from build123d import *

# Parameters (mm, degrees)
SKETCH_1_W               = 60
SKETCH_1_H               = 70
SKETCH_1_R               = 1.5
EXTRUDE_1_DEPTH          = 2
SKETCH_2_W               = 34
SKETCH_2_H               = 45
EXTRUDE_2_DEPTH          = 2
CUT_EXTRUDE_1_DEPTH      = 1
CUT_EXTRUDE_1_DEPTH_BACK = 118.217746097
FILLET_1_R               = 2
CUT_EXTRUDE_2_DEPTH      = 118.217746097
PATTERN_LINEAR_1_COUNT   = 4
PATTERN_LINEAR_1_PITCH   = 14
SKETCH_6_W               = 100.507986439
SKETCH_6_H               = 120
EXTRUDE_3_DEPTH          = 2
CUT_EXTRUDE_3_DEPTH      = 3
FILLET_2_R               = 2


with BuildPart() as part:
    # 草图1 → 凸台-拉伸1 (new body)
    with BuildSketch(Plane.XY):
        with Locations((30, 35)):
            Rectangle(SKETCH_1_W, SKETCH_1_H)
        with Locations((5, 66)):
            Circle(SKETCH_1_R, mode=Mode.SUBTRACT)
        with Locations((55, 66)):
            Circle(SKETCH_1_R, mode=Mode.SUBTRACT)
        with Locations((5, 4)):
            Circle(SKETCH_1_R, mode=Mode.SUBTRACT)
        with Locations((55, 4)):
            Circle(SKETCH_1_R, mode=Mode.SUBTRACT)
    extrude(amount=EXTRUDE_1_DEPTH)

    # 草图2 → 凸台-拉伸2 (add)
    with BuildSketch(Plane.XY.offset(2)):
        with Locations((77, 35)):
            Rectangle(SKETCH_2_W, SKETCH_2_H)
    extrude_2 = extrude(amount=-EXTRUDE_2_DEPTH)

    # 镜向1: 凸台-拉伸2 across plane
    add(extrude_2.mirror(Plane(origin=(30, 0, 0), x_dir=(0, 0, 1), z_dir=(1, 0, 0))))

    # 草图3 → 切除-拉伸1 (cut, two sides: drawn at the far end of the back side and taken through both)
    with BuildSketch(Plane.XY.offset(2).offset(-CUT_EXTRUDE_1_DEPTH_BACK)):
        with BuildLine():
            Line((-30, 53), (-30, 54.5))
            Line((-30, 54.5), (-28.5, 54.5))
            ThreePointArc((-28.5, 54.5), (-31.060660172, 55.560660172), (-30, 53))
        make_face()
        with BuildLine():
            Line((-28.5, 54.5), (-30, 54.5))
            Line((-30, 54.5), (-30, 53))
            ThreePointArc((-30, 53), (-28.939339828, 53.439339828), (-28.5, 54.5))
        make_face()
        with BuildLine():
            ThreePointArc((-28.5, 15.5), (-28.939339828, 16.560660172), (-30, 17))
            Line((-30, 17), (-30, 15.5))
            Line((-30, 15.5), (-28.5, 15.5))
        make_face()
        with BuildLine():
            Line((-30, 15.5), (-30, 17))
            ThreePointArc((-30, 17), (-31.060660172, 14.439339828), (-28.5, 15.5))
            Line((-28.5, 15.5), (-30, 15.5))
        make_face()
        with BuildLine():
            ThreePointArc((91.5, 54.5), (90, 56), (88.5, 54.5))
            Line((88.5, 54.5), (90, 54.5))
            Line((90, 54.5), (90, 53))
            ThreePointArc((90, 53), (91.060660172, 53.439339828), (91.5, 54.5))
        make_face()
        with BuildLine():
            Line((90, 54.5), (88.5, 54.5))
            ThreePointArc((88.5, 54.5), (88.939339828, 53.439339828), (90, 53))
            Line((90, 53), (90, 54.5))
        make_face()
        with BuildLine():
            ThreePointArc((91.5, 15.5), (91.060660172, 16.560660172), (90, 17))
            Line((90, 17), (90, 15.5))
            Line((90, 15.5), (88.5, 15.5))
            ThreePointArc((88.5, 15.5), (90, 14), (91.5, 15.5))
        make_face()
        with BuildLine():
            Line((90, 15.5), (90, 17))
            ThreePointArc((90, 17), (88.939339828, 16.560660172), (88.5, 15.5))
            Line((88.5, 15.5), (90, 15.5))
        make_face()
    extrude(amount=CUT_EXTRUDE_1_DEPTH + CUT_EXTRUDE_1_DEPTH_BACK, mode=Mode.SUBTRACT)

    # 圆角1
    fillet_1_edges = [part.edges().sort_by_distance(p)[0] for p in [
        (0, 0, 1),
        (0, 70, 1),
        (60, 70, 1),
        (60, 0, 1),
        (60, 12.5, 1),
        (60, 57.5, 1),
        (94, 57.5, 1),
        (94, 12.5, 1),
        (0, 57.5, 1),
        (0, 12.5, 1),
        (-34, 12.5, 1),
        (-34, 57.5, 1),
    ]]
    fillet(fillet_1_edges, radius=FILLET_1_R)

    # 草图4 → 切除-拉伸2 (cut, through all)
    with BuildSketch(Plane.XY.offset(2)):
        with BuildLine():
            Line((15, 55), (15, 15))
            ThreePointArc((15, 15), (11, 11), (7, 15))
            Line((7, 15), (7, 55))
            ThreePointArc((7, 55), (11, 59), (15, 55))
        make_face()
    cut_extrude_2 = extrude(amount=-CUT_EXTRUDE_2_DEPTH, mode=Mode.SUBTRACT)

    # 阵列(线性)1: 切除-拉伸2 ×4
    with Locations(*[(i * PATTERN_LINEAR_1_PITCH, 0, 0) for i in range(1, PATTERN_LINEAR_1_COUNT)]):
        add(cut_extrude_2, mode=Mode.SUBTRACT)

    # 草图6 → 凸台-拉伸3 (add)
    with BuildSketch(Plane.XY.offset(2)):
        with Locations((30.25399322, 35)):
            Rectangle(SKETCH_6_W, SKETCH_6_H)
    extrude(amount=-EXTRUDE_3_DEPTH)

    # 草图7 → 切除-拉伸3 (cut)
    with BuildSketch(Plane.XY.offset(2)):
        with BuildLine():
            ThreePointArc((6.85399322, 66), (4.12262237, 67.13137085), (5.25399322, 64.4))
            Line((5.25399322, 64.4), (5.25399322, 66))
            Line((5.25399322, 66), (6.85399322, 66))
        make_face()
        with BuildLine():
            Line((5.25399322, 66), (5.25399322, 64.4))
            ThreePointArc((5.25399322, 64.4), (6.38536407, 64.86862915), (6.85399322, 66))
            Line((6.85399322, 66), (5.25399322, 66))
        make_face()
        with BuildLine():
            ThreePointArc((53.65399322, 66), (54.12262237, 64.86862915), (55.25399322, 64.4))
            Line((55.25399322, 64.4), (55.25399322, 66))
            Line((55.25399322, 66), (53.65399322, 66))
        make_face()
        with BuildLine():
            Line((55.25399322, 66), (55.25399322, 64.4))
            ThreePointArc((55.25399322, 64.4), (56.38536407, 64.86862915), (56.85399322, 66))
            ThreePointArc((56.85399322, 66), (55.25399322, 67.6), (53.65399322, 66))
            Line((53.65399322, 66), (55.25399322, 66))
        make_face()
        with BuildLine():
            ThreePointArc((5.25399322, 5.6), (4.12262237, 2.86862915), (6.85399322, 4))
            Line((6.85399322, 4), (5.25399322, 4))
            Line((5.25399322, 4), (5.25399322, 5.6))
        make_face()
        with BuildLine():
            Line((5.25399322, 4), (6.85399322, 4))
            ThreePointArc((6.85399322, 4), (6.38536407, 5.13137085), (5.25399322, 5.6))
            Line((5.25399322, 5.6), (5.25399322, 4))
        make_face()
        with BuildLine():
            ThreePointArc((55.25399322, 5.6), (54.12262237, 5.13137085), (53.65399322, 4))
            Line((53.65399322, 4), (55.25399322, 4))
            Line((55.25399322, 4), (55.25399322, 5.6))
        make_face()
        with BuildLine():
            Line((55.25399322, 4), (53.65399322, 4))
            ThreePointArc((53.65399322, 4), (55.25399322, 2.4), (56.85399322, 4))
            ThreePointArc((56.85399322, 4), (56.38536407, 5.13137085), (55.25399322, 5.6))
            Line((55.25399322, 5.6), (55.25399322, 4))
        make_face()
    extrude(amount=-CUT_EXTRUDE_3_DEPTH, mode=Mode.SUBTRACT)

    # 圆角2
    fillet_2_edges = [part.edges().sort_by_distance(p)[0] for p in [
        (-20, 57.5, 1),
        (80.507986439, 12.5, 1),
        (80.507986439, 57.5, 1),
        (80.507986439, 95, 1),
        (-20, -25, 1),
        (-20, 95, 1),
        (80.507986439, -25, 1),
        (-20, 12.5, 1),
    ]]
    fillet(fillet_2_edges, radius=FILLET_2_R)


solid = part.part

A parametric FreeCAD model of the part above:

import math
import FreeCAD as App
import Part
import Sketcher


def edges_at(feature, points):
    """Names of the edges that pass closest to the given points."""
    edges = feature.Shape.Edges
    near = lambda p: min(range(len(edges)), key=lambda i: edges[i].distToShape(Part.Vertex(*p))[0])
    return sorted({f"Edge{near(p) + 1}" for p in points})


def add_polygon(sketch, points):
    """Adds a closed chain of lines whose ends are joined by coincident constraints."""
    first, n = sketch.GeometryCount, len(points)
    for a, b in zip(points, points[1:] + points[:1]):
        sketch.addGeometry(Part.LineSegment(App.Vector(*a, 0), App.Vector(*b, 0)), False)
    for i in range(n):
        sketch.addConstraint(Sketcher.Constraint("Coincident", first + i, 2, first + (i + 1) % n, 1))

doc = App.newDocument("Part")
body = doc.addObject("PartDesign::Body", "Body")

# Sketch on XY plane
sketch1 = doc.addObject("Sketcher::SketchObject", "Sketch")
body.addObject(sketch1)
sketch1.AttachmentSupport = (doc.XY_Plane, [""])
sketch1.MapMode = "FlatFace"
add_polygon(sketch1, [(0, 70), (0, 0), (60, 0), (60, 70)])  # lines 0-3
sketch1.addGeometry(Part.Circle(App.Vector(5, 4, 0), App.Vector(0, 0, 1), 1.5), False)  # 4
sketch1.addGeometry(Part.Circle(App.Vector(55, 4, 0), App.Vector(0, 0, 1), 1.5), False)  # 5
sketch1.addGeometry(Part.Circle(App.Vector(5, 66, 0), App.Vector(0, 0, 1), 1.5), False)  # 6
sketch1.addGeometry(Part.Circle(App.Vector(55, 66, 0), App.Vector(0, 0, 1), 1.5), False)  # 7
sketch1.addConstraint(Sketcher.Constraint("Vertical", 0))
sketch1.addConstraint(Sketcher.Constraint("Horizontal", 1))
sketch1.addConstraint(Sketcher.Constraint("Vertical", 2))
sketch1.addConstraint(Sketcher.Constraint("Horizontal", 3))
sketch1.addConstraint(Sketcher.Constraint("Coincident", 0, 2, -1, 1))
sketch1.addConstraint(Sketcher.Constraint("Equal", 4, 5))
sketch1.addConstraint(Sketcher.Constraint("Equal", 5, 6))
sketch1.addConstraint(Sketcher.Constraint("Equal", 6, 7))
sketch1.addConstraint(Sketcher.Constraint("Horizontal", 4, 3, 5, 3))
sketch1.addConstraint(Sketcher.Constraint("Horizontal", 6, 3, 7, 3))
sketch1.addConstraint(Sketcher.Constraint("Vertical", 4, 3, 6, 3))
sketch1.addConstraint(Sketcher.Constraint("Vertical", 5, 3, 7, 3))
sketch1.addConstraint(Sketcher.Constraint("Diameter", 4, 3.0))
sketch1.addConstraint(Sketcher.Constraint("DistanceX", 1, 1, 1, 2, 60.0))
sketch1.addConstraint(Sketcher.Constraint("DistanceY", 0, 2, 0, 1, 70.0))
sketch1.addConstraint(Sketcher.Constraint("DistanceX", -1, 1, 4, 3, 5.0))
sketch1.addConstraint(Sketcher.Constraint("DistanceY", -1, 1, 4, 3, 4.0))
sketch1.addConstraint(Sketcher.Constraint("DistanceX", -1, 1, 5, 3, 55.0))
sketch1.addConstraint(Sketcher.Constraint("DistanceY", -1, 1, 6, 3, 66.0))
pad1 = doc.addObject("PartDesign::Pad", "Pad")
body.addObject(pad1)
pad1.Profile = sketch1
pad1.Length = 2

# Sketch on XY plane
sketch2 = doc.addObject("Sketcher::SketchObject", "Sketch001")
body.addObject(sketch2)
sketch2.AttachmentSupport = (doc.XY_Plane, [""])
sketch2.MapMode = "FlatFace"
sketch2.AttachmentOffset = App.Placement(App.Vector(0, 0, 2), App.Rotation())
add_polygon(sketch2, [(60, 58), (60, 12), (94, 12), (94, 58)])  # lines 0-3
sketch2.addConstraint(Sketcher.Constraint("Vertical", 0))
sketch2.addConstraint(Sketcher.Constraint("Horizontal", 1))
sketch2.addConstraint(Sketcher.Constraint("Vertical", 2))
sketch2.addConstraint(Sketcher.Constraint("Horizontal", 3))
sketch2.addConstraint(Sketcher.Constraint("DistanceX", 1, 1, 1, 2, 34.0))
sketch2.addConstraint(Sketcher.Constraint("DistanceY", 0, 2, 0, 1, 45.0))
sketch2.addConstraint(Sketcher.Constraint("DistanceX", -1, 1, 0, 2, 60.0))
sketch2.addConstraint(Sketcher.Constraint("DistanceY", -1, 1, 0, 2, 12.5))
pad2 = doc.addObject("PartDesign::Pad", "Pad001")
body.addObject(pad2)
pad2.Profile = sketch2
pad2.Length = 2
pad2.Reversed = True
doc.recompute()

datumplane = doc.addObject("PartDesign::Plane", "DatumPlane")
body.addObject(datumplane)
datumplane.AttachmentSupport = (doc.YZ_Plane, [""])
datumplane.MapMode = "FlatFace"
datumplane.AttachmentOffset = App.Placement(App.Vector(0, 0, 30), App.Rotation())
mirrored = doc.addObject("PartDesign::Mirrored", "Mirrored")
body.addObject(mirrored)
mirrored.Originals = [pad2]
mirrored.MirrorPlane = (datumplane, [""])
body.Tip = mirrored

# Sketch on XY plane
sketch3 = doc.addObject("Sketcher::SketchObject", "Sketch002")
body.addObject(sketch3)
sketch3.AttachmentSupport = (doc.XY_Plane, [""])
sketch3.MapMode = "FlatFace"
sketch3.AttachmentOffset = App.Placement(App.Vector(0, 0, 2), App.Rotation())
sketch3.addGeometry(Part.ArcOfCircle(Part.Circle(App.Vector(-30, 54.5, 0), App.Vector(0, 0, 1), 1.5), math.radians(0), math.radians(270)), False)
sketch3.addGeometry(Part.ArcOfCircle(Part.Circle(App.Vector(-30, 54.5, 0), App.Vector(0, 0, 1), 1.5), math.radians(-90), math.radians(0)), False)
sketch3.addGeometry(Part.ArcOfCircle(Part.Circle(App.Vector(-30, 15.5, 0), App.Vector(0, 0, 1), 1.5), math.radians(0), math.radians(90)), False)
sketch3.addGeometry(Part.ArcOfCircle(Part.Circle(App.Vector(-30, 15.5, 0), App.Vector(0, 0, 1), 1.5), math.radians(90), math.radians(360)), False)
sketch3.addGeometry(Part.ArcOfCircle(Part.Circle(App.Vector(90, 54.5, 0), App.Vector(0, 0, 1), 1.5), math.radians(0), math.radians(180)), False)
sketch3.addGeometry(Part.ArcOfCircle(Part.Circle(App.Vector(90, 54.5, 0), App.Vector(0, 0, 1), 1.5), math.radians(180), math.radians(270)), False)
sketch3.addGeometry(Part.ArcOfCircle(Part.Circle(App.Vector(90, 54.5, 0), App.Vector(0, 0, 1), 1.5), math.radians(-90), math.radians(0)), False)
sketch3.addGeometry(Part.ArcOfCircle(Part.Circle(App.Vector(90, 15.5, 0), App.Vector(0, 0, 1), 1.5), math.radians(0), math.radians(90)), False)
sketch3.addGeometry(Part.ArcOfCircle(Part.Circle(App.Vector(90, 15.5, 0), App.Vector(0, 0, 1), 1.5), math.radians(90), math.radians(180)), False)
sketch3.addGeometry(Part.ArcOfCircle(Part.Circle(App.Vector(90, 15.5, 0), App.Vector(0, 0, 1), 1.5), math.radians(180), math.radians(360)), False)
sketch3.addConstraint(Sketcher.Constraint("Tangent", 0, 1, 1, 2))
sketch3.addConstraint(Sketcher.Constraint("Coincident", 1, 1, 0, 2))
sketch3.addConstraint(Sketcher.Constraint("Tangent", 2, 1, 3, 2))
sketch3.addConstraint(Sketcher.Constraint("Coincident", 3, 1, 2, 2))
sketch3.addConstraint(Sketcher.Constraint("Tangent", 4, 2, 5, 1))
sketch3.addConstraint(Sketcher.Constraint("Tangent", 5, 2, 6, 1))
sketch3.addConstraint(Sketcher.Constraint("Tangent", 6, 2, 4, 1))
sketch3.addConstraint(Sketcher.Constraint("Tangent", 7, 2, 8, 1))
sketch3.addConstraint(Sketcher.Constraint("Tangent", 8, 2, 9, 1))
sketch3.addConstraint(Sketcher.Constraint("Tangent", 9, 2, 7, 1))
sketch3.addConstraint(Sketcher.Constraint("Equal", 1, 2))
sketch3.addConstraint(Sketcher.Constraint("Equal", 3, 4))
sketch3.addConstraint(Sketcher.Constraint("Equal", 6, 7))
sketch3.addConstraint(Sketcher.Constraint("Horizontal", 1, 3, 4, 3))
sketch3.addConstraint(Sketcher.Constraint("Horizontal", 3, 3, 7, 3))
sketch3.addConstraint(Sketcher.Constraint("Horizontal", 6, 3, 0, 1))
sketch3.addConstraint(Sketcher.Constraint("Horizontal", 9, 3, 2, 1))
sketch3.addConstraint(Sketcher.Constraint("Horizontal", 0, 1, 4, 2))
sketch3.addConstraint(Sketcher.Constraint("Horizontal", 4, 2, 6, 2))
sketch3.addConstraint(Sketcher.Constraint("Horizontal", 2, 1, 8, 2))
sketch3.addConstraint(Sketcher.Constraint("Horizontal", 8, 2, 9, 2))
sketch3.addConstraint(Sketcher.Constraint("Vertical", 1, 3, 2, 3))
sketch3.addConstraint(Sketcher.Constraint("Vertical", 6, 3, 7, 3))
sketch3.addConstraint(Sketcher.Constraint("Vertical", 3, 3, 1, 1))
sketch3.addConstraint(Sketcher.Constraint("Vertical", 1, 1, 3, 1))
sketch3.addConstraint(Sketcher.Constraint("Vertical", 9, 3, 5, 2))
sketch3.addConstraint(Sketcher.Constraint("Vertical", 5, 2, 7, 2))
sketch3.addConstraint(Sketcher.Constraint("Radius", 0, 1.5))
sketch3.addConstraint(Sketcher.Constraint("DistanceX", 0, 3, -1, 1, 30.0))
sketch3.addConstraint(Sketcher.Constraint("DistanceX", -1, 1, 4, 3, 90.0))
sketch3.addConstraint(Sketcher.Constraint("DistanceY", -1, 1, 1, 1, 53.0))
sketch3.addConstraint(Sketcher.Constraint("DistanceY", -1, 1, 3, 1, 17.0))
pocket1 = doc.addObject("PartDesign::Pocket", "Pocket")
body.addObject(pocket1)
pocket1.Profile = sketch3
pocket1.Type = "ThroughAll"
pocket1.Midplane = True
doc.recompute()

fillet = doc.addObject("PartDesign::Fillet", "Fillet")
body.addObject(fillet)
fillet.Base = (pocket1, edges_at(pocket1, [
    (0, 0, 1),
    (0, 70, 1),
    (60, 70, 1),
    (60, 0, 1),
    (60, 12.5, 1),
    (60, 57.5, 1),
    (94, 57.5, 1),
    (94, 12.5, 1),
    (0, 57.5, 1),
    (0, 12.5, 1),
    (-34, 12.5, 1),
    (-34, 57.5, 1),
]))
fillet.Radius = 2

# Sketch on XY plane
sketch4 = doc.addObject("Sketcher::SketchObject", "Sketch003")
body.addObject(sketch4)
sketch4.AttachmentSupport = (doc.XY_Plane, [""])
sketch4.MapMode = "FlatFace"
sketch4.AttachmentOffset = App.Placement(App.Vector(0, 0, 2), App.Rotation())
sketch4.addGeometry(Part.LineSegment(App.Vector(15, 15, 0), App.Vector(15, 55, 0)), False)
sketch4.addGeometry(Part.ArcOfCircle(Part.Circle(App.Vector(11, 55, 0), App.Vector(0, 0, 1), 4), math.radians(0), math.radians(180)), False)
sketch4.addGeometry(Part.LineSegment(App.Vector(7, 55, 0), App.Vector(7, 15, 0)), False)
sketch4.addGeometry(Part.ArcOfCircle(Part.Circle(App.Vector(11, 15, 0), App.Vector(0, 0, 1), 4), math.radians(180), math.radians(360)), False)
sketch4.addConstraint(Sketcher.Constraint("Tangent", 0, 2, 1, 1))
sketch4.addConstraint(Sketcher.Constraint("Tangent", 1, 2, 2, 1))
sketch4.addConstraint(Sketcher.Constraint("Tangent", 2, 2, 3, 1))
sketch4.addConstraint(Sketcher.Constraint("Tangent", 3, 2, 0, 1))
sketch4.addConstraint(Sketcher.Constraint("Vertical", 0))
sketch4.addConstraint(Sketcher.Constraint("Vertical", 2))
sketch4.addConstraint(Sketcher.Constraint("Radius", 1, 4.0))
sketch4.addConstraint(Sketcher.Constraint("DistanceY", 0, 1, 0, 2, 40.0))
sketch4.addConstraint(Sketcher.Constraint("DistanceX", -1, 1, 1, 3, 11.0))
sketch4.addConstraint(Sketcher.Constraint("DistanceY", -1, 1, 1, 3, 55.0))
pocket2 = doc.addObject("PartDesign::Pocket", "Pocket001")
body.addObject(pocket2)
pocket2.Profile = sketch4
pocket2.Type = "ThroughAll"
doc.recompute()

linearpattern = doc.addObject("PartDesign::LinearPattern", "LinearPattern")
body.addObject(linearpattern)
linearpattern.Originals = [pocket2]
linearpattern.Direction = (doc.X_Axis, [""])
linearpattern.Mode = "offset"
linearpattern.Offset = 14
linearpattern.Occurrences = 4
body.Tip = linearpattern

# Sketch on XY plane
sketch5 = doc.addObject("Sketcher::SketchObject", "Sketch004")
body.addObject(sketch5)
sketch5.AttachmentSupport = (doc.XY_Plane, [""])
sketch5.MapMode = "FlatFace"
sketch5.AttachmentOffset = App.Placement(App.Vector(0, 0, 2), App.Rotation())
add_polygon(sketch5, [(-20, 95), (-20, -25), (81, -25), (81, 95)])  # lines 0-3
sketch5.addConstraint(Sketcher.Constraint("Vertical", 0))
sketch5.addConstraint(Sketcher.Constraint("Horizontal", 1))
sketch5.addConstraint(Sketcher.Constraint("Vertical", 2))
sketch5.addConstraint(Sketcher.Constraint("Horizontal", 3))
sketch5.addConstraint(Sketcher.Constraint("DistanceY", 0, 2, 0, 1, 120.0))
sketch5.addConstraint(Sketcher.Constraint("DistanceX", 0, 2, -1, 1, 20.0))
sketch5.addConstraint(Sketcher.Constraint("DistanceY", 0, 2, -1, 1, 25.0))
sketch5.addConstraint(Sketcher.Constraint("DistanceX", 1, 1, 1, 2, 100.507986))
pad3 = doc.addObject("PartDesign::Pad", "Pad002")
body.addObject(pad3)
pad3.Profile = sketch5
pad3.Length = 2
pad3.Reversed = True

# Sketch on XY plane
sketch6 = doc.addObject("Sketcher::SketchObject", "Sketch005")
body.addObject(sketch6)
sketch6.AttachmentSupport = (doc.XY_Plane, [""])
sketch6.MapMode = "FlatFace"
sketch6.AttachmentOffset = App.Placement(App.Vector(0, 0, 2), App.Rotation())
sketch6.addGeometry(Part.ArcOfCircle(Part.Circle(App.Vector(5.3, 66, 0), App.Vector(0, 0, 1), 1.6), math.radians(0), math.radians(270)), False)
sketch6.addGeometry(Part.ArcOfCircle(Part.Circle(App.Vector(5.3, 66, 0), App.Vector(0, 0, 1), 1.6), math.radians(-90), math.radians(0)), False)
sketch6.addGeometry(Part.ArcOfCircle(Part.Circle(App.Vector(55.3, 66, 0), App.Vector(0, 0, 1), 1.6), math.radians(180), math.radians(270)), False)
sketch6.addGeometry(Part.ArcOfCircle(Part.Circle(App.Vector(55.3, 66, 0), App.Vector(0, 0, 1), 1.6), math.radians(-90), math.radians(0)), False)
sketch6.addGeometry(Part.ArcOfCircle(Part.Circle(App.Vector(55.3, 66, 0), App.Vector(0, 0, 1), 1.6), math.radians(0), math.radians(180)), False)
sketch6.addGeometry(Part.ArcOfCircle(Part.Circle(App.Vector(5.3, 4, 0), App.Vector(0, 0, 1), 1.6), math.radians(90), math.radians(360)), False)
sketch6.addGeometry(Part.ArcOfCircle(Part.Circle(App.Vector(5.3, 4, 0), App.Vector(0, 0, 1), 1.6), math.radians(0), math.radians(90)), False)
sketch6.addGeometry(Part.ArcOfCircle(Part.Circle(App.Vector(55.3, 4, 0), App.Vector(0, 0, 1), 1.6), math.radians(90), math.radians(180)), False)
sketch6.addGeometry(Part.ArcOfCircle(Part.Circle(App.Vector(55.3, 4, 0), App.Vector(0, 0, 1), 1.6), math.radians(180), math.radians(360)), False)
sketch6.addGeometry(Part.ArcOfCircle(Part.Circle(App.Vector(55.3, 4, 0), App.Vector(0, 0, 1), 1.6), math.radians(0), math.radians(90)), False)
sketch6.addConstraint(Sketcher.Constraint("Tangent", 0, 1, 1, 2))
sketch6.addConstraint(Sketcher.Constraint("Coincident", 1, 1, 0, 2))
sketch6.addConstraint(Sketcher.Constraint("Tangent", 2, 2, 3, 1))
sketch6.addConstraint(Sketcher.Constraint("Tangent", 3, 2, 4, 1))
sketch6.addConstraint(Sketcher.Constraint("Tangent", 4, 2, 2, 1))
sketch6.addConstraint(Sketcher.Constraint("Tangent", 5, 1, 6, 2))
sketch6.addConstraint(Sketcher.Constraint("Coincident", 6, 1, 5, 2))
sketch6.addConstraint(Sketcher.Constraint("Tangent", 7, 2, 8, 1))
sketch6.addConstraint(Sketcher.Constraint("Tangent", 8, 2, 9, 1))
sketch6.addConstraint(Sketcher.Constraint("Tangent", 9, 2, 7, 1))
sketch6.addConstraint(Sketcher.Constraint("Equal", 1, 2))
sketch6.addConstraint(Sketcher.Constraint("Equal", 4, 5))
sketch6.addConstraint(Sketcher.Constraint("Equal", 6, 7))
sketch6.addConstraint(Sketcher.Constraint("Horizontal", 1, 3, 2, 3))
sketch6.addConstraint(Sketcher.Constraint("Horizontal", 6, 3, 7, 3))
sketch6.addConstraint(Sketcher.Constraint("Horizontal", 4, 3, 0, 1))
sketch6.addConstraint(Sketcher.Constraint("Horizontal", 0, 1, 3, 2))
sketch6.addConstraint(Sketcher.Constraint("Horizontal", 3, 2, 4, 2))
sketch6.addConstraint(Sketcher.Constraint("Horizontal", 9, 3, 6, 1))
sketch6.addConstraint(Sketcher.Constraint("Horizontal", 6, 1, 7, 2))
sketch6.addConstraint(Sketcher.Constraint("Horizontal", 7, 2, 8, 2))
sketch6.addConstraint(Sketcher.Constraint("Vertical", 1, 3, 5, 3))
sketch6.addConstraint(Sketcher.Constraint("Vertical", 4, 3, 7, 3))
sketch6.addConstraint(Sketcher.Constraint("Vertical", 6, 3, 1, 1))
sketch6.addConstraint(Sketcher.Constraint("Vertical", 9, 3, 2, 2))
sketch6.addConstraint(Sketcher.Constraint("Vertical", 1, 1, 5, 1))
sketch6.addConstraint(Sketcher.Constraint("Vertical", 2, 2, 9, 2))
sketch6.addConstraint(Sketcher.Constraint("Radius", 0, 1.6))
sketch6.addConstraint(Sketcher.Constraint("DistanceY", -1, 1, 0, 3, 66.0))
sketch6.addConstraint(Sketcher.Constraint("DistanceY", -1, 1, 5, 3, 4.0))
sketch6.addConstraint(Sketcher.Constraint("DistanceX", 0, 3, 2, 3, 50.0))
sketch6.addConstraint(Sketcher.Constraint("DistanceX", -1, 1, 0, 3, 5.253993))
pocket3 = doc.addObject("PartDesign::Pocket", "Pocket002")
body.addObject(pocket3)
pocket3.Profile = sketch6
pocket3.Length = 3
doc.recompute()

fillet2 = doc.addObject("PartDesign::Fillet", "Fillet001")
body.addObject(fillet2)
fillet2.Base = (pocket3, edges_at(pocket3, [
    (-20, 57.5, 1),
    (80.508, 12.5, 1),
    (80.508, 57.5, 1),
    (80.508, 95, 1),
    (-20, -25, 1),
    (-20, 95, 1),
    (80.508, -25, 1),
    (-20, 12.5, 1),
]))
fillet2.Radius = 2

doc.recompute()
